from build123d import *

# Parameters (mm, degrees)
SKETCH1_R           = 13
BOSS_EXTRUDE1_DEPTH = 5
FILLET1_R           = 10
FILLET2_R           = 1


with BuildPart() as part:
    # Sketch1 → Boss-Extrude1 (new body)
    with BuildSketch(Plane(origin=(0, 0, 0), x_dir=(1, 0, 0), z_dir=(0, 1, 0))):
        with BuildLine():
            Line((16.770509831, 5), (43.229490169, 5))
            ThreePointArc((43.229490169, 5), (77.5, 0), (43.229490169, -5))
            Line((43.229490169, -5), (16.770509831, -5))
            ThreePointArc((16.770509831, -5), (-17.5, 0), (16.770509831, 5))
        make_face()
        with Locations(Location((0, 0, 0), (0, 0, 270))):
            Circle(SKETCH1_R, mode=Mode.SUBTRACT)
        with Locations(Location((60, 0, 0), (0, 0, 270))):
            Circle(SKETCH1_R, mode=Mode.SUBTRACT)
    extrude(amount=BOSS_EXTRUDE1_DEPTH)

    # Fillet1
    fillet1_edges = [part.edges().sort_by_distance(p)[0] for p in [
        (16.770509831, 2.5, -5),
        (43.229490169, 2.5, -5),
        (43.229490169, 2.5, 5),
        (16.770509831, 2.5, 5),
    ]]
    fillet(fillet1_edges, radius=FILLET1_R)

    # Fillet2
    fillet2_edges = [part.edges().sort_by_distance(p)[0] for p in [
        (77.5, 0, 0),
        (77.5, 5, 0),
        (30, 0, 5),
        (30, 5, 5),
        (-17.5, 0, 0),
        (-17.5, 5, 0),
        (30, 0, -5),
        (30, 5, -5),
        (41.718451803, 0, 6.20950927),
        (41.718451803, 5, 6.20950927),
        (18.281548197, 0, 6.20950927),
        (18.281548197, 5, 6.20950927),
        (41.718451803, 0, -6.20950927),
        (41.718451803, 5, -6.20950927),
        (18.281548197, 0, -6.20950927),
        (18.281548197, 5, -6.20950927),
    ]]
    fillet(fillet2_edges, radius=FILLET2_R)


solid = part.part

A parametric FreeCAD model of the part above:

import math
import FreeCAD as App
import Part
import Sketcher

V = App.Vector
Q = App.Units.Quantity


def edges_at(feature, points):
    """Names of the edges that pass closest to the given points."""
    edges = feature.Shape.Edges
    near = lambda p: min(range(len(edges)), key=lambda i: edges[i].distToShape(Part.Vertex(*p))[0])
    return sorted({f"Edge{near(p) + 1}" for p in points})

doc = App.newDocument("Part")
body = doc.addObject("PartDesign::Body", "Body")

# Sketch on XZ plane
sketch1 = body.newObject("Sketcher::SketchObject", "Sketch")
sketch1.AttachmentSupport = (doc.getObject("XZ_Plane"), [""])
sketch1.MapMode = "FlatFace"
sketch1.addGeometry([
    Part.LineSegment(V(43, -5, 0), V(17, -5, 0)),  # 0
    Part.ArcOfCircle(Part.Circle(V(0, 0, 0), V(0, 0, 1), 18), math.radians(17), math.radians(343)),  # 1
    Part.LineSegment(V(17, 5, 0), V(43, 5, 0)),  # 2
    Part.ArcOfCircle(Part.Circle(V(60, 0, 0), V(0, 0, 1), 18), math.radians(-163), math.radians(163)),  # 3
    Part.Circle(V(60, 0, 0), V(0, 0, 1), 13),  # 4
    Part.Circle(V(0, 0, 0), V(0, 0, 1), 13),  # 5
], False)
sketch1.addConstraint([
    Sketcher.Constraint("Coincident", 0, 2, 1, 2),
    Sketcher.Constraint("Coincident", 1, 1, 2, 1),
    Sketcher.Constraint("Coincident", 2, 2, 3, 2),
    Sketcher.Constraint("Coincident", 3, 1, 0, 1),
    Sketcher.Constraint("Horizontal", 0),
    Sketcher.Constraint("Horizontal", 2),
    Sketcher.Constraint("Coincident", 1, 3, -1, 1),
    Sketcher.Constraint("Coincident", 5, 3, -1, 1),
    Sketcher.Constraint("Coincident", 4, 3, 3, 3),
    Sketcher.Constraint("Equal", 1, 3),
    Sketcher.Constraint("Equal", 4, 5),
    Sketcher.Constraint("Symmetric", 2, 2, 3, 1, -1),
    Sketcher.Constraint("Diameter", 4, Q("26 mm")),
    Sketcher.Constraint("Radius", 1, Q("17.5 mm")),
    Sketcher.Constraint("DistanceX", -1, 1, 3, 3, Q("60 mm")),
    Sketcher.Constraint("DistanceY", 0, 2, -1, 1, Q("5 mm")),
])
pad1 = body.newObject("PartDesign::Pad", "Pad")
pad1.Profile = sketch1
pad1.Length = 5
pad1.Reversed = True
doc.recompute()

fillet = body.newObject("PartDesign::Fillet", "Fillet")
fillet.Base = (pad1, edges_at(pad1, [
    (16.771, 2.5, -5),
    (43.229, 2.5, -5),
    (43.229, 2.5, 5),
    (16.771, 2.5, 5),
]))
fillet.Radius = 10
doc.recompute()

fillet2 = body.newObject("PartDesign::Fillet", "Fillet001")
fillet2.Base = (fillet, edges_at(fillet, [
    (77.5, 0, 0),
    (77.5, 5, 0),
    (30, 0, 5),
    (30, 5, 5),
    (-17.5, 0, 0),
    (-17.5, 5, 0),
    (30, 0, -5),
    (30, 5, -5),
    (41.718, 0, 6.21),
    (41.718, 5, 6.21),
    (18.282, 0, 6.21),
    (18.282, 5, 6.21),
    (41.718, 0, -6.21),
    (41.718, 5, -6.21),
    (18.282, 0, -6.21),
    (18.282, 5, -6.21),
]))
fillet2.Radius = 1

doc.recompute()
